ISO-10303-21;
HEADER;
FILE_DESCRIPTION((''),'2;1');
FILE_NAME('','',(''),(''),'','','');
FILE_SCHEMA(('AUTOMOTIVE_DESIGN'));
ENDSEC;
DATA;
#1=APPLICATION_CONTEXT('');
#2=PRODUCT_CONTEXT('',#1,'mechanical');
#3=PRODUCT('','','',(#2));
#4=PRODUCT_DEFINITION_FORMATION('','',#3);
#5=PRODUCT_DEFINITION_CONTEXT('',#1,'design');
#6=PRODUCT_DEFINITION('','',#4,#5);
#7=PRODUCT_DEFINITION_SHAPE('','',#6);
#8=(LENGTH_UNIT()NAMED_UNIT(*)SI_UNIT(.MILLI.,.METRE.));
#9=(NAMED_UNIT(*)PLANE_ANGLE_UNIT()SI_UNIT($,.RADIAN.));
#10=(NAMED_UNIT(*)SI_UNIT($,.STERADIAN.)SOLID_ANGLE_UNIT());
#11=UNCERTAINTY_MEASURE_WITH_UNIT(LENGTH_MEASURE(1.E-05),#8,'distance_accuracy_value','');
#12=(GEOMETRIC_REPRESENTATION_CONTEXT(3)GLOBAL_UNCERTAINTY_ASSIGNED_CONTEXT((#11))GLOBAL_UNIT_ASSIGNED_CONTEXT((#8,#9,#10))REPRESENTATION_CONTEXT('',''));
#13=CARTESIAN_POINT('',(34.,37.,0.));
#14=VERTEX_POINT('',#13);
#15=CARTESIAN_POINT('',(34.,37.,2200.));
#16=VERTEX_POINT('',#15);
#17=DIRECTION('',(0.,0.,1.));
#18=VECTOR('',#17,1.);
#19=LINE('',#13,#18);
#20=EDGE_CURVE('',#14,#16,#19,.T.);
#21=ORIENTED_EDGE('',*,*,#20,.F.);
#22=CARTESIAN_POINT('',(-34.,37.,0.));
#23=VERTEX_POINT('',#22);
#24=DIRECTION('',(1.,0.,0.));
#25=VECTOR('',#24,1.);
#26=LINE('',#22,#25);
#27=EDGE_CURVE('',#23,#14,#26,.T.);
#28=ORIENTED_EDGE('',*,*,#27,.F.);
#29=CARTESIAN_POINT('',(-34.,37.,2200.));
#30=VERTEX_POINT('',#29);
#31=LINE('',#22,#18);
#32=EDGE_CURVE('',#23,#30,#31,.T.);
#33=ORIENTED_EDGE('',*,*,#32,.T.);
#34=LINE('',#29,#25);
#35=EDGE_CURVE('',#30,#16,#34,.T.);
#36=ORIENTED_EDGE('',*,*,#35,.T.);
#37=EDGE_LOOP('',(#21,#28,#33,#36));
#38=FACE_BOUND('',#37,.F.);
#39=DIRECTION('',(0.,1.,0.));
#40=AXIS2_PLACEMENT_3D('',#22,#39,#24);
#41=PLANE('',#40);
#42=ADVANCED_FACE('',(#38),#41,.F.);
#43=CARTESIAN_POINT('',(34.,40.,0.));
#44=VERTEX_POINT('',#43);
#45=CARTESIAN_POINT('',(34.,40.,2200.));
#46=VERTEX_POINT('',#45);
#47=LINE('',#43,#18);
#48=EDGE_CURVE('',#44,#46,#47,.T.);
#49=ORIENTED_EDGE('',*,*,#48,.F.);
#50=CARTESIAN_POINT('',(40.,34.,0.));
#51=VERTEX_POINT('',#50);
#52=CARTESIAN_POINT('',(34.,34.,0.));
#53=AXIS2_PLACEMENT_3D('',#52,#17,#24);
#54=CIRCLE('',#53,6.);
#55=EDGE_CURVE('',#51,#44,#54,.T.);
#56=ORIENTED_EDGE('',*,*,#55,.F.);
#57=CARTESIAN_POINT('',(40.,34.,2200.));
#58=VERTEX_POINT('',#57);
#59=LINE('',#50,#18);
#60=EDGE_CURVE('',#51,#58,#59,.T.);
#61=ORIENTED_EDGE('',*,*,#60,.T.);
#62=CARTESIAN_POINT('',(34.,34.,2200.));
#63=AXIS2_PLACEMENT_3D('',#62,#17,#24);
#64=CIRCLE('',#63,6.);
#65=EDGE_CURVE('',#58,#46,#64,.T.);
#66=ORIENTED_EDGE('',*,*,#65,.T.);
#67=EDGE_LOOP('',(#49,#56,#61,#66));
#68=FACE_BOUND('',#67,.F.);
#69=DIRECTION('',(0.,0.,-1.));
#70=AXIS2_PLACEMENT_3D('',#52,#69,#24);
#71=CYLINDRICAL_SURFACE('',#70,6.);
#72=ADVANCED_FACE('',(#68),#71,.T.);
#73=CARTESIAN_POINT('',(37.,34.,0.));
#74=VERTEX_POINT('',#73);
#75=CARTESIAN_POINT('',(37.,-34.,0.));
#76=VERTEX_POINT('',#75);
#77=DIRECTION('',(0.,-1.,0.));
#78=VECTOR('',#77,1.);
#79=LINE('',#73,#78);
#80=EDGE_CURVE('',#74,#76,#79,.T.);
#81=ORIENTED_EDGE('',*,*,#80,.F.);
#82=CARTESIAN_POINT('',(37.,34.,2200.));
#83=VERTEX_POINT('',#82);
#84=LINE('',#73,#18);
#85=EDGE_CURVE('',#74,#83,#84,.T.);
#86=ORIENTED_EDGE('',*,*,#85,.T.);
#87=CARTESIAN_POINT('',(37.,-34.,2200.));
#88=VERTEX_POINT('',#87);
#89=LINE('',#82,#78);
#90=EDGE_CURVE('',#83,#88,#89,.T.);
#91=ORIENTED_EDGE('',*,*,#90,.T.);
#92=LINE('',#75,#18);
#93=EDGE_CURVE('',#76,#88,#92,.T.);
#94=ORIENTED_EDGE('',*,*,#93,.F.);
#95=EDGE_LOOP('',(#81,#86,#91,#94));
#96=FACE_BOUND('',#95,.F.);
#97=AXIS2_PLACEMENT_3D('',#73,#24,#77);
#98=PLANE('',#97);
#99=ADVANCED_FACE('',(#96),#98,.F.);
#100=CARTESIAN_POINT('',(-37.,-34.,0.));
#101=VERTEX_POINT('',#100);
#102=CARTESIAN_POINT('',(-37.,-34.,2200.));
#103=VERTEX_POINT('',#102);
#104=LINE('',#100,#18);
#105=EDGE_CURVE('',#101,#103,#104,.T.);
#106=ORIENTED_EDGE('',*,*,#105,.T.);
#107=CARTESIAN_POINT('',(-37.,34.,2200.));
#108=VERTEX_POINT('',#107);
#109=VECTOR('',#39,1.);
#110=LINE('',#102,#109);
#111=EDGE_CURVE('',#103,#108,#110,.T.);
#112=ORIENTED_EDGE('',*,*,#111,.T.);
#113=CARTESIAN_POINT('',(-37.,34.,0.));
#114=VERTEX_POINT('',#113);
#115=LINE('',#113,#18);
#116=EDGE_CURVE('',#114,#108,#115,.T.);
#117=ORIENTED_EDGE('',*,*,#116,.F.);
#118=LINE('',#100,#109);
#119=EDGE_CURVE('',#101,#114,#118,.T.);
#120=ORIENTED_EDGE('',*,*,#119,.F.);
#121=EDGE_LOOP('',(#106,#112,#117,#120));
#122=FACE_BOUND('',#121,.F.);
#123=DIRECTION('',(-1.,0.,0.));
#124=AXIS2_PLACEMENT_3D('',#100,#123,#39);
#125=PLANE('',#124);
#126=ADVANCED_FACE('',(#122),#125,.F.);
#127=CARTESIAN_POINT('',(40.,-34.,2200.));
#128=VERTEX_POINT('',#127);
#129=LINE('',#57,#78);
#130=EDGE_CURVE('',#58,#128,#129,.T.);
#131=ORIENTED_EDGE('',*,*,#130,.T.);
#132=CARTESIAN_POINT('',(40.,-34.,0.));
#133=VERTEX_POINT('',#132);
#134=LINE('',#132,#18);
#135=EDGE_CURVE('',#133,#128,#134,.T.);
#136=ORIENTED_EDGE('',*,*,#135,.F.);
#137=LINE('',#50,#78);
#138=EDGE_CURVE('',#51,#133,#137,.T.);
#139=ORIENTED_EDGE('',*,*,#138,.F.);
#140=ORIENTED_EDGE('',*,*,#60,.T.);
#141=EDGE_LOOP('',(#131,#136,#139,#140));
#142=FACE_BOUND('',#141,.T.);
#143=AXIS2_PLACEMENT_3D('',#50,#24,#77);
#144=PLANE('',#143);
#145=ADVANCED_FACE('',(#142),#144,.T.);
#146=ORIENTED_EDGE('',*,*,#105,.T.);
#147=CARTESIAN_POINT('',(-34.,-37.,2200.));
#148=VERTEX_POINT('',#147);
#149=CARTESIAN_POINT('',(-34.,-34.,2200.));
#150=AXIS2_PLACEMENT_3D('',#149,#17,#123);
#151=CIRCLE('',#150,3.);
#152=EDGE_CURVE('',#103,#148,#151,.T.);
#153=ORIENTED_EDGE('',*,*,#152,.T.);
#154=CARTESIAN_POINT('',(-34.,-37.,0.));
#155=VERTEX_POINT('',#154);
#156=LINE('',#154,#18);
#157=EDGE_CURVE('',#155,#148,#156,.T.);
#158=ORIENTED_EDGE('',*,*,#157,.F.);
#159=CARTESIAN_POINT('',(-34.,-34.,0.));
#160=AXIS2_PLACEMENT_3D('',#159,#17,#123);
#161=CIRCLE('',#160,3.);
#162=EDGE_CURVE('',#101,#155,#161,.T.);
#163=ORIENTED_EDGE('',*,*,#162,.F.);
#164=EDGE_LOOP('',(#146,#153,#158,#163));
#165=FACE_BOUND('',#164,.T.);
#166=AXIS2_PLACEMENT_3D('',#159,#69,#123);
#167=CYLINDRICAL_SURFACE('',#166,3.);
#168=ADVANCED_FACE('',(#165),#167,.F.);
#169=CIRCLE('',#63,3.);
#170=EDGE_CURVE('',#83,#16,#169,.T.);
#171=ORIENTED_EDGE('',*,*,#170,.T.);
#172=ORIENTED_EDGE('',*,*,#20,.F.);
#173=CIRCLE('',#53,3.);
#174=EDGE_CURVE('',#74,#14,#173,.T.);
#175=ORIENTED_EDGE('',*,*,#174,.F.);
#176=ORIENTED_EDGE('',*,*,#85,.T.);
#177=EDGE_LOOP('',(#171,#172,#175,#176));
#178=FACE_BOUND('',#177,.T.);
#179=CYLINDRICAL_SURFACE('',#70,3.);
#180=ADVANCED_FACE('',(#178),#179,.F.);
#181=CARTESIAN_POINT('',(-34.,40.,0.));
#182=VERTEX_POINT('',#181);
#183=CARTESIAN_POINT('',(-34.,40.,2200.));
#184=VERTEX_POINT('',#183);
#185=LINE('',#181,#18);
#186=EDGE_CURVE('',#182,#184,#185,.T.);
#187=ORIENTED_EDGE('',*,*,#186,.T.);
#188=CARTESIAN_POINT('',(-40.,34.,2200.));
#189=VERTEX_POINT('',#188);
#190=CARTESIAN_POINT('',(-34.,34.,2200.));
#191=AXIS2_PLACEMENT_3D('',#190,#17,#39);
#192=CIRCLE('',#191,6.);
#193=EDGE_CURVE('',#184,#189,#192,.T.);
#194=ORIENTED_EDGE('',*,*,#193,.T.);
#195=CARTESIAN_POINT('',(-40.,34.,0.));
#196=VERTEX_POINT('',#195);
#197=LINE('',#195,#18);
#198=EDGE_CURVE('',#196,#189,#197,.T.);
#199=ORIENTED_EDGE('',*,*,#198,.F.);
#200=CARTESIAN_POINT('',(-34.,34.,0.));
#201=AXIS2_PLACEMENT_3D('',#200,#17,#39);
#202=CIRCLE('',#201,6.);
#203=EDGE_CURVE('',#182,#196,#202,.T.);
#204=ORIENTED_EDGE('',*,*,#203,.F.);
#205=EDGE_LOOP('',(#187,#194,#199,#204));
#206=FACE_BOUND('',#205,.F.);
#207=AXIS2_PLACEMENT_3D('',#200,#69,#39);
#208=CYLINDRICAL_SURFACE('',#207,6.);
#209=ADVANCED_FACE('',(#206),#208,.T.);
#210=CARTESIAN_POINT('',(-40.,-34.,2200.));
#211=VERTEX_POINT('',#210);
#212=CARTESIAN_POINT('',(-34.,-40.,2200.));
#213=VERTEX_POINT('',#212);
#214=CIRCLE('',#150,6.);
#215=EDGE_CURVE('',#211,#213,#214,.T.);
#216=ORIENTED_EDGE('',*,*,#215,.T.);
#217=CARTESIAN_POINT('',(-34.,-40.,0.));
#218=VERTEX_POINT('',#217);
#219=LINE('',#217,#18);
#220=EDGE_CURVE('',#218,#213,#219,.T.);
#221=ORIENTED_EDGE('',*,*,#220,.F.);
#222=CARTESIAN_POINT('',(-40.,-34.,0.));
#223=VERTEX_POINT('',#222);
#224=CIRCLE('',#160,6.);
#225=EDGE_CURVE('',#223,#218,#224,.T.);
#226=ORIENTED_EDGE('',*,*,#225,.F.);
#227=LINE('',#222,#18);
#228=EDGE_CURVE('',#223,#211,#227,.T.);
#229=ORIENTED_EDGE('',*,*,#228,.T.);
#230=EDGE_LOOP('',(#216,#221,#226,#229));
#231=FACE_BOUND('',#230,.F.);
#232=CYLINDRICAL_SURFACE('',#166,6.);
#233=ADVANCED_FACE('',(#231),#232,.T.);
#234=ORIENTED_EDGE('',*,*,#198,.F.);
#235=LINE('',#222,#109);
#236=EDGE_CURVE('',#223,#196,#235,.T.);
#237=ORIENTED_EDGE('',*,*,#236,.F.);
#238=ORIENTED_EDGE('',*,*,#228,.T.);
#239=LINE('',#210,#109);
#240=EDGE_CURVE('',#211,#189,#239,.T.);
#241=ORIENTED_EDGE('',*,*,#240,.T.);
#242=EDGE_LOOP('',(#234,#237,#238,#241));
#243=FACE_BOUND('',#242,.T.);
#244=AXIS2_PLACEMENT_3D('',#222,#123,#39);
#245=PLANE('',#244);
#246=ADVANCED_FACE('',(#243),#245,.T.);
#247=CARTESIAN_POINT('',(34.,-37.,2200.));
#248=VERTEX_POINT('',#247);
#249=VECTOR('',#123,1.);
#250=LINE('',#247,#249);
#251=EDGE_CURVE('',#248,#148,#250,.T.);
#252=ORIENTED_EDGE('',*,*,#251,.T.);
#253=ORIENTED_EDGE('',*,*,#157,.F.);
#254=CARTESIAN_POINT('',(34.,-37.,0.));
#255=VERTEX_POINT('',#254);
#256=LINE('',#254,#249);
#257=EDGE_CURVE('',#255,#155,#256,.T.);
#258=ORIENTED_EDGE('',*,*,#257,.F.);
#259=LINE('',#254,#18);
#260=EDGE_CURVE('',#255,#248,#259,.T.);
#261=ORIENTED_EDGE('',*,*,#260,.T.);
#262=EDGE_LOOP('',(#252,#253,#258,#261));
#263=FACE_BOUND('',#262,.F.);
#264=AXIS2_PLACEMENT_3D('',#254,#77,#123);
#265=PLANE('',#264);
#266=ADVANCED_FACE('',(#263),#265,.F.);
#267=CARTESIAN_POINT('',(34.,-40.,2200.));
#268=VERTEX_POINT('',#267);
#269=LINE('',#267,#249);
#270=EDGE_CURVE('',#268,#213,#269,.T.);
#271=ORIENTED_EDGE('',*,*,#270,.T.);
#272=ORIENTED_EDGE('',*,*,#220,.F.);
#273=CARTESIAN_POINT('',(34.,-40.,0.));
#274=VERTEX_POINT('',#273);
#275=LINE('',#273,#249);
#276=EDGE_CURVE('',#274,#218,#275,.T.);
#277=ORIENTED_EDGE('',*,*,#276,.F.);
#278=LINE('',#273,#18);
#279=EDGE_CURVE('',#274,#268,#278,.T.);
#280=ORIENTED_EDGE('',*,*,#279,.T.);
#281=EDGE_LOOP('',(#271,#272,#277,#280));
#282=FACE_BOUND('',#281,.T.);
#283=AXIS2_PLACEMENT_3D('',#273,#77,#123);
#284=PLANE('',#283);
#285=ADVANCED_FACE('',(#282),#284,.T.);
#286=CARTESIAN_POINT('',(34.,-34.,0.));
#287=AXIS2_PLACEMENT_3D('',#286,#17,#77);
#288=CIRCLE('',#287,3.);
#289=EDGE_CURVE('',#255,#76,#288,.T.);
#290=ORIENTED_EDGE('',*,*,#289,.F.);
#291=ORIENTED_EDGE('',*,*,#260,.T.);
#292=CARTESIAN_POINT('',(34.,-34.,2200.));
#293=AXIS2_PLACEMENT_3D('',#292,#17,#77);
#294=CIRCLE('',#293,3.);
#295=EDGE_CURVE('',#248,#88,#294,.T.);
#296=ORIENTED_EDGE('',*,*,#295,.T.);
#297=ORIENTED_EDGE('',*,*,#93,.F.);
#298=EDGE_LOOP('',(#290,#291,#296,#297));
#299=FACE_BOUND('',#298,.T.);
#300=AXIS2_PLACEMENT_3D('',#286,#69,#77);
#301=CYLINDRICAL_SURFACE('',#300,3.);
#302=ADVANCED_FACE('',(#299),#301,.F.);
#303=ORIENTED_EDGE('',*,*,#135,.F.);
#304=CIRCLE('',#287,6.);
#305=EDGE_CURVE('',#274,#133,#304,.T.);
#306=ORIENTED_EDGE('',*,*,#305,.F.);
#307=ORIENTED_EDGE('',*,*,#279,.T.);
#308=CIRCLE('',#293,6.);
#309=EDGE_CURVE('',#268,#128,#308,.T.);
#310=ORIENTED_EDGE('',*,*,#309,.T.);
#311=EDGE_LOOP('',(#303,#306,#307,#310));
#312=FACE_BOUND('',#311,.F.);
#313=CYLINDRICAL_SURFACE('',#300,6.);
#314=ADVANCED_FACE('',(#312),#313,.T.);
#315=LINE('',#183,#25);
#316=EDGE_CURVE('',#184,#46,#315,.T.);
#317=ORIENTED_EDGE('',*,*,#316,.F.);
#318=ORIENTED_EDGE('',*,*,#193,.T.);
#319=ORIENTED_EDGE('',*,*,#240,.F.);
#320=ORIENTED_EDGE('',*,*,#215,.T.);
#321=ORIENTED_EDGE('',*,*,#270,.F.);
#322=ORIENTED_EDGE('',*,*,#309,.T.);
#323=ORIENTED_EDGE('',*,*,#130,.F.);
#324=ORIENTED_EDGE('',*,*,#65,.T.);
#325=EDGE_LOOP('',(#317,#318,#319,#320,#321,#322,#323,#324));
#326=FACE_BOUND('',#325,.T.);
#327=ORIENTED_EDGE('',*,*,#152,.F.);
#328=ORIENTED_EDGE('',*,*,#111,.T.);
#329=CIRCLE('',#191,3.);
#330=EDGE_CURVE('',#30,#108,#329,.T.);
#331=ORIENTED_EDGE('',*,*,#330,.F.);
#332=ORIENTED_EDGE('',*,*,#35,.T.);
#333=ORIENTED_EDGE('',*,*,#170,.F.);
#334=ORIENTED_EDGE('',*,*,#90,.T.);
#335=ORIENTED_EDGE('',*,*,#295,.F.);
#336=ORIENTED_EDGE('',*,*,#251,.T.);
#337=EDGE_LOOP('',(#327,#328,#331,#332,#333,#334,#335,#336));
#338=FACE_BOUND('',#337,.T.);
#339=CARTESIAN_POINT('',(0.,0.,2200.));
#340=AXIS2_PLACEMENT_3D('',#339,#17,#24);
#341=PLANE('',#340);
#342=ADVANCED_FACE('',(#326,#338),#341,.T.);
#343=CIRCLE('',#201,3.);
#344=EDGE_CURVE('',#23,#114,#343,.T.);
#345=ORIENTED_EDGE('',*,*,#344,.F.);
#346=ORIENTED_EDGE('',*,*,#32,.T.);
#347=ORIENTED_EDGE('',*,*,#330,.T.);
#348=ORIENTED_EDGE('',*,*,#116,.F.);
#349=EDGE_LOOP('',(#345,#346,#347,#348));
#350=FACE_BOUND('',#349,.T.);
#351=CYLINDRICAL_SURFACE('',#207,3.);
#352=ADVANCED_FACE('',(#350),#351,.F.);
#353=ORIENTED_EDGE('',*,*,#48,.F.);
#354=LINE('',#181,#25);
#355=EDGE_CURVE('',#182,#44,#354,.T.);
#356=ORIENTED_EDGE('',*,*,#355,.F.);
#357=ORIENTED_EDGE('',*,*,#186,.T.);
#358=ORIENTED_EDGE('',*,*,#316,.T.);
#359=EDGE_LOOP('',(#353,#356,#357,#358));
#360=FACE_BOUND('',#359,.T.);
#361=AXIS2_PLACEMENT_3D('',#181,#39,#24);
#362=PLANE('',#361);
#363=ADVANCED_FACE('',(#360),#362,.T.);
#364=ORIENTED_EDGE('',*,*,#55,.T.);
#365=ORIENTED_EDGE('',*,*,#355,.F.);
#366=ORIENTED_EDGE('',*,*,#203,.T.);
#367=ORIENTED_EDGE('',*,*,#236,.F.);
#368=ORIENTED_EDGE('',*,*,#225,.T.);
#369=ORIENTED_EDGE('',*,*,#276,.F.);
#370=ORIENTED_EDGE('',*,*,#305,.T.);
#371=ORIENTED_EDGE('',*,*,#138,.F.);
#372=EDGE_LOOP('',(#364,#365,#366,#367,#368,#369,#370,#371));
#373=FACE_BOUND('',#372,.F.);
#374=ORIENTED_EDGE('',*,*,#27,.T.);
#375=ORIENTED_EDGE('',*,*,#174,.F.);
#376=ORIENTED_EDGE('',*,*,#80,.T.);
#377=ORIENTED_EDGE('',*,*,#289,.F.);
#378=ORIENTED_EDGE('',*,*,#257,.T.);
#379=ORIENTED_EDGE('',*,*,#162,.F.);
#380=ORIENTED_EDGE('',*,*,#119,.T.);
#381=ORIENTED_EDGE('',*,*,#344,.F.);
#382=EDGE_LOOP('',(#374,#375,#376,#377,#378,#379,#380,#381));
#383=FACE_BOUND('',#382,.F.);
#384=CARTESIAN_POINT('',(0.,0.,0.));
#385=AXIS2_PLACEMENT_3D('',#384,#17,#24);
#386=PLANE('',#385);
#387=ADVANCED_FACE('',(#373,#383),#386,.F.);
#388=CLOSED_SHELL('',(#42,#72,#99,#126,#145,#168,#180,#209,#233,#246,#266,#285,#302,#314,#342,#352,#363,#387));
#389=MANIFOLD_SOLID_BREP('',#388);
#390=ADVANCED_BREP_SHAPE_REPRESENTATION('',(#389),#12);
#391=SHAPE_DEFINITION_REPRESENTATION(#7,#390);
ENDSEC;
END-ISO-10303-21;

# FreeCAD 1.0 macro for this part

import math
import FreeCAD as App
import Part
import Sketcher
from FreeCAD import Vector
Q = App.Units.Quantity

doc = App.newDocument("Part")
params = doc.addObject("Spreadsheet::Sheet", "Params")
for row, (alias, value) in enumerate([
    ("sketch1_radius", "6 mm"),
    ("sketch1_radius2", "3 mm"),
    ("pad1_length", "2200 mm"),
], start=1):
    params.set(f"A{row}", alias)
    params.set(f"B{row}", "=" + value)
    params.setAlias(f"B{row}", alias)

body = doc.addObject("PartDesign::Body", "Body")

sketch1 = body.newObject("Sketcher::SketchObject", "Sketch")
sketch1.AttachmentSupport = (doc.getObject("XY_Plane"), [""])
sketch1.MapMode = "FlatFace"
sketch1.addGeometry(Part.LineSegment(Vector(-40, 34, 0), Vector(-40, -34, 0)), False)
sketch1.addGeometry(Part.ArcOfCircle(Part.Circle(Vector(-34, -34, 0), Vector(0, 0, 1), 6), math.radians(180), math.radians(270)), False)
sketch1.addGeometry(Part.LineSegment(Vector(-34, -40, 0), Vector(34, -40, 0)), False)
sketch1.addGeometry(Part.ArcOfCircle(Part.Circle(Vector(34, -34, 0), Vector(0, 0, 1), 6), math.radians(-90), math.radians(0)), False)
sketch1.addGeometry(Part.LineSegment(Vector(40, -34, 0), Vector(40, 34, 0)), False)
sketch1.addGeometry(Part.ArcOfCircle(Part.Circle(Vector(34, 34, 0), Vector(0, 0, 1), 6), math.radians(0), math.radians(90)), False)
sketch1.addGeometry(Part.LineSegment(Vector(34, 40, 0), Vector(-34, 40, 0)), False)
sketch1.addGeometry(Part.ArcOfCircle(Part.Circle(Vector(-34, 34, 0), Vector(0, 0, 1), 6), math.radians(90), math.radians(180)), False)
sketch1.addGeometry(Part.ArcOfCircle(Part.Circle(Vector(-34, 34, 0), Vector(0, 0, 1), 3), math.radians(90), math.radians(180)), False)
sketch1.addGeometry(Part.LineSegment(Vector(-34, 37, 0), Vector(34, 37, 0)), False)
sketch1.addGeometry(Part.ArcOfCircle(Part.Circle(Vector(34, 34, 0), Vector(0, 0, 1), 3), math.radians(0), math.radians(90)), False)
sketch1.addGeometry(Part.LineSegment(Vector(37, 34, 0), Vector(37, -34, 0)), False)
sketch1.addGeometry(Part.ArcOfCircle(Part.Circle(Vector(34, -34, 0), Vector(0, 0, 1), 3), math.radians(-90), math.radians(0)), False)
sketch1.addGeometry(Part.LineSegment(Vector(34, -37, 0), Vector(-34, -37, 0)), False)
sketch1.addGeometry(Part.ArcOfCircle(Part.Circle(Vector(-34, -34, 0), Vector(0, 0, 1), 3), math.radians(180), math.radians(270)), False)
sketch1.addGeometry(Part.LineSegment(Vector(-37, -34, 0), Vector(-37, 34, 0)), False)
sketch1.addConstraint(Sketcher.Constraint("Tangent", 0, 2, 1, 1))
sketch1.addConstraint(Sketcher.Constraint("Tangent", 1, 2, 2, 1))
sketch1.addConstraint(Sketcher.Constraint("Tangent", 2, 2, 3, 1))
sketch1.addConstraint(Sketcher.Constraint("Tangent", 3, 2, 4, 1))
sketch1.addConstraint(Sketcher.Constraint("Tangent", 4, 2, 5, 1))
sketch1.addConstraint(Sketcher.Constraint("Tangent", 5, 2, 6, 1))
sketch1.addConstraint(Sketcher.Constraint("Tangent", 6, 2, 7, 1))
sketch1.addConstraint(Sketcher.Constraint("Tangent", 7, 2, 0, 1))
sketch1.addConstraint(Sketcher.Constraint("Tangent", 8, 1, 9, 1))
sketch1.addConstraint(Sketcher.Constraint("Tangent", 9, 2, 10, 2))
sketch1.addConstraint(Sketcher.Constraint("Tangent", 10, 1, 11, 1))
sketch1.addConstraint(Sketcher.Constraint("Tangent", 11, 2, 12, 2))
sketch1.addConstraint(Sketcher.Constraint("Tangent", 12, 1, 13, 1))
sketch1.addConstraint(Sketcher.Constraint("Tangent", 13, 2, 14, 2))
sketch1.addConstraint(Sketcher.Constraint("Tangent", 14, 1, 15, 1))
sketch1.addConstraint(Sketcher.Constraint("Tangent", 15, 2, 8, 2))
sketch1.addConstraint(Sketcher.Constraint("Vertical", 0))
sketch1.addConstraint(Sketcher.Constraint("Horizontal", 2))
sketch1.addConstraint(Sketcher.Constraint("Vertical", 4))
sketch1.addConstraint(Sketcher.Constraint("Horizontal", 6))
sketch1.addConstraint(Sketcher.Constraint("Horizontal", 9))
sketch1.addConstraint(Sketcher.Constraint("Vertical", 11))
sketch1.addConstraint(Sketcher.Constraint("Horizontal", 13))
sketch1.addConstraint(Sketcher.Constraint("Vertical", 15))
sketch1.addConstraint(Sketcher.Constraint("Coincident", 8, 3, 7, 3))
sketch1.addConstraint(Sketcher.Constraint("Coincident", 10, 3, 5, 3))
sketch1.addConstraint(Sketcher.Constraint("Coincident", 12, 3, 3, 3))
sketch1.addConstraint(Sketcher.Constraint("Equal", 1, 3))
sketch1.addConstraint(Sketcher.Constraint("Equal", 3, 5))
sketch1.addConstraint(Sketcher.Constraint("Equal", 5, 7))
sketch1.addConstraint(Sketcher.Constraint("Equal", 12, 14))
sketch1.addConstraint(Sketcher.Constraint("Symmetric", 1, 3, 5, 3, -1, 1))
sketch1.addConstraint(Sketcher.Constraint("Equal", 13, 0))
sketch1.addConstraint(Sketcher.Constraint("Radius", 1, Q("6 mm")))
sketch1.addConstraint(Sketcher.Constraint("Radius", 8, Q("3 mm")))
sketch1.addConstraint(Sketcher.Constraint("DistanceX", 0, 2, -1, 1, Q("40 mm")))
sketch1.setExpression("Constraints[33]", "Params.sketch1_radius")
sketch1.setExpression("Constraints[34]", "Params.sketch1_radius2")
pad1 = body.newObject("PartDesign::Pad", "Pad")
pad1.Profile = sketch1
pad1.setExpression("Length", "Params.pad1_length")

doc.recompute()
